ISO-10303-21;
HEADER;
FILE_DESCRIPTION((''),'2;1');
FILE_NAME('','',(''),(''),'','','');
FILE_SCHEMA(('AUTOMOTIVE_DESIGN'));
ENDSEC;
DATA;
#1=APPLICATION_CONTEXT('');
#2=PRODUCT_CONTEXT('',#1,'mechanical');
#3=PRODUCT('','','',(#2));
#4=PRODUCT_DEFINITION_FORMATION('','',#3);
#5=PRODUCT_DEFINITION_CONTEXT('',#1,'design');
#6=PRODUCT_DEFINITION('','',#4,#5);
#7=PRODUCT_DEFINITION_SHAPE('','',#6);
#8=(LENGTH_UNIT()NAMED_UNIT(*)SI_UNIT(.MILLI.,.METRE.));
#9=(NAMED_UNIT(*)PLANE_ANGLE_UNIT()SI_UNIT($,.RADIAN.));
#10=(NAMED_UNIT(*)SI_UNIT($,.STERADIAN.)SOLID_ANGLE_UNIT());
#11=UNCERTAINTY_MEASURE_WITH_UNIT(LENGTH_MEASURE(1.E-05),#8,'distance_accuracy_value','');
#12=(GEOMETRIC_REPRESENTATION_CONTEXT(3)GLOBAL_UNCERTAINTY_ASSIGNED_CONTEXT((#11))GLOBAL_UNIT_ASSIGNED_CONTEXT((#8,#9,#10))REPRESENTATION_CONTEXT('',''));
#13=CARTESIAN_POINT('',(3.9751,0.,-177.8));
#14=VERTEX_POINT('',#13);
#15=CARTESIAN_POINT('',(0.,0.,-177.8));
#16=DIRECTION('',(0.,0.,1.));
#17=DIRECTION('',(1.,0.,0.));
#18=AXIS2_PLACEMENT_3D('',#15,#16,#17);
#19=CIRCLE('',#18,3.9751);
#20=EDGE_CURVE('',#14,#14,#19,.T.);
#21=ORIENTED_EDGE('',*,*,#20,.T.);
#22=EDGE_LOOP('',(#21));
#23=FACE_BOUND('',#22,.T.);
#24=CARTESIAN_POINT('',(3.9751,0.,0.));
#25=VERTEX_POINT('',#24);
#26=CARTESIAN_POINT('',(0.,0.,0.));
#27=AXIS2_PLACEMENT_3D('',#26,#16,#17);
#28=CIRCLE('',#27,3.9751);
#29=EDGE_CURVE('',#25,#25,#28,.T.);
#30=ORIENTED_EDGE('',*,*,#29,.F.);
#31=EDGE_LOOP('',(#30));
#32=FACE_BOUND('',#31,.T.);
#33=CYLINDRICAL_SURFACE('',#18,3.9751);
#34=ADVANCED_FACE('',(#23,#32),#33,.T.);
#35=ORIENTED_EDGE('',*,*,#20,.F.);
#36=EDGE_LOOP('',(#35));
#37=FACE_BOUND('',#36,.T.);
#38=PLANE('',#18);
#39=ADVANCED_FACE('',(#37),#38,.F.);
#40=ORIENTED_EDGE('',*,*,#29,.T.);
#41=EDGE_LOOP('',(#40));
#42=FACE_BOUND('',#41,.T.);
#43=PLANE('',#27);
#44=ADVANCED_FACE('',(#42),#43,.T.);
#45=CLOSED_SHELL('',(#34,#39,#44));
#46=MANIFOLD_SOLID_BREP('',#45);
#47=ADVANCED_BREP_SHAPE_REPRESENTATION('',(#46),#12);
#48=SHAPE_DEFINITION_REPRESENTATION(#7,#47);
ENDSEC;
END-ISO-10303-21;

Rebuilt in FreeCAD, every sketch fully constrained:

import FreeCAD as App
import Part
import Sketcher

V = App.Vector
Q = App.Units.Quantity

doc = App.newDocument("Part")
body = doc.addObject("PartDesign::Body", "Body")

# Sketch on XY plane
sketch1 = body.newObject("Sketcher::SketchObject", "Sketch")
sketch1.AttachmentSupport = (doc.getObject("XY_Plane"), [""])
sketch1.MapMode = "FlatFace"
sketch1.addGeometry(Part.Circle(V(0, 0, 0), V(0, 0, 1), 4), False)
sketch1.addConstraint(Sketcher.Constraint("Coincident", 0, 3, -1, 1))
sketch1.addConstraint(Sketcher.Constraint("Diameter", 0, Q("0.313 in")))
pad1 = body.newObject("PartDesign::Pad", "Pad")
pad1.Profile = sketch1
pad1.Length = Q("7 in")
pad1.Reversed = True

doc.recompute()
